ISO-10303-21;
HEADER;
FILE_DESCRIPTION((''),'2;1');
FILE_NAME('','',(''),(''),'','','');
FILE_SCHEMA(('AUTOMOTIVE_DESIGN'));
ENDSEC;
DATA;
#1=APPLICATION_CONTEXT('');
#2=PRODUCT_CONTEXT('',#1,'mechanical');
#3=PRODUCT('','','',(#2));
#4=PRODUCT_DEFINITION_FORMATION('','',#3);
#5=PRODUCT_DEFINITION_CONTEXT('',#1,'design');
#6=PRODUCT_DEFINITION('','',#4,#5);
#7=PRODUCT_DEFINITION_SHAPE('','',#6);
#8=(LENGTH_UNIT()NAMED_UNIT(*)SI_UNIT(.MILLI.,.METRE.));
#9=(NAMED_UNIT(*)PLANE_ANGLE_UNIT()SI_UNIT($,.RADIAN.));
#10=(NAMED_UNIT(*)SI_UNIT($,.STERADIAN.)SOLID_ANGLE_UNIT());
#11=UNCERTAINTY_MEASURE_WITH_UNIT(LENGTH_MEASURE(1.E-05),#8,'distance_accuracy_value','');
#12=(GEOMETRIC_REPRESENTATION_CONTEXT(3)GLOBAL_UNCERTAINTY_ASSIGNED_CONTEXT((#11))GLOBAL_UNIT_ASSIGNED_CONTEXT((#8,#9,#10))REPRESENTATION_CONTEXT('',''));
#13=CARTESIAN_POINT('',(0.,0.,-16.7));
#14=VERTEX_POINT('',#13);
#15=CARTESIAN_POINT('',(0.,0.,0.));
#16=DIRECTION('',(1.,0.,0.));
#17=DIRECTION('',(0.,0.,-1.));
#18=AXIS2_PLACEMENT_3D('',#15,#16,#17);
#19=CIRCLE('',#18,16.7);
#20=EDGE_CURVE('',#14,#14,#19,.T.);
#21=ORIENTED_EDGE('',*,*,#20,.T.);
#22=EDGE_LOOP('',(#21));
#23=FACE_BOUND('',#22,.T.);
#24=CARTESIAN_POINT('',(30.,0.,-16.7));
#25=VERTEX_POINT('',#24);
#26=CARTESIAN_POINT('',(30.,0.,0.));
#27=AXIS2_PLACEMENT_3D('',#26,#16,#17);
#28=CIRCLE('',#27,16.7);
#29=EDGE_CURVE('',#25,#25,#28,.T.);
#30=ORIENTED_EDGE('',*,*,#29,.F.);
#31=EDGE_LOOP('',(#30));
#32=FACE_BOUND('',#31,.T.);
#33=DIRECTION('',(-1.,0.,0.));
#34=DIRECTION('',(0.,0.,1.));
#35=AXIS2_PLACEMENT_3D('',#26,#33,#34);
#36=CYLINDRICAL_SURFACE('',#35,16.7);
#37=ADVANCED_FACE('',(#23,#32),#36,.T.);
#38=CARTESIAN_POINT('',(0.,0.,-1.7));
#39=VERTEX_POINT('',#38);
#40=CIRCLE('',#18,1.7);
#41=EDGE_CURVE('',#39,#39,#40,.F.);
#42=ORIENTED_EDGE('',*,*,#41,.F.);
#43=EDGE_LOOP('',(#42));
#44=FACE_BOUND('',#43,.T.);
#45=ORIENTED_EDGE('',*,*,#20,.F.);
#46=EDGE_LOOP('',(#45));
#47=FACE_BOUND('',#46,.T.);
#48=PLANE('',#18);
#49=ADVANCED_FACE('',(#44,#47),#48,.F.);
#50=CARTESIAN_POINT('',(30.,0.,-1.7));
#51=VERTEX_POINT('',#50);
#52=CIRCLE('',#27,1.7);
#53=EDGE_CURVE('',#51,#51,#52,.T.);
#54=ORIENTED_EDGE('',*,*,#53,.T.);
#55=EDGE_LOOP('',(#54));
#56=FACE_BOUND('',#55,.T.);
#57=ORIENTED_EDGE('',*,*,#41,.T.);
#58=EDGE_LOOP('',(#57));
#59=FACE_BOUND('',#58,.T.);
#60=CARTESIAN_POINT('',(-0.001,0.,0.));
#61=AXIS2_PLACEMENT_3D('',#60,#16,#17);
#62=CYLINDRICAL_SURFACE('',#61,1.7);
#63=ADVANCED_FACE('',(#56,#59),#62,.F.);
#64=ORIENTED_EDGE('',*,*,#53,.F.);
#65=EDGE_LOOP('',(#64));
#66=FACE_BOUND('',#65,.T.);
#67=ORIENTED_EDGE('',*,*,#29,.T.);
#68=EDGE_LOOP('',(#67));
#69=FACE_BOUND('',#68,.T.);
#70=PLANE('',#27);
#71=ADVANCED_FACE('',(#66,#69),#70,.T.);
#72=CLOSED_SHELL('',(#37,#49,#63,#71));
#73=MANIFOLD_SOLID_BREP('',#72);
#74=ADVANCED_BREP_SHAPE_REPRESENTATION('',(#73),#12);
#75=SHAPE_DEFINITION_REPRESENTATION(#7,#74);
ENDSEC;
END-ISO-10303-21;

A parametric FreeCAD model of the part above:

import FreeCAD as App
import Part
import Sketcher
from FreeCAD import Vector
Q = App.Units.Quantity

doc = App.newDocument("Part")
body = doc.addObject("PartDesign::Body", "Body")

# Sketch on YZ plane
sketch1 = body.newObject("Sketcher::SketchObject", "Sketch")
sketch1.AttachmentSupport = (doc.getObject("YZ_Plane"), [""])
sketch1.MapMode = "FlatFace"
sketch1.addGeometry(Part.Circle(Vector(0, 0, 0), Vector(0, 0, 1), 17), False)
sketch1.addConstraint([
    Sketcher.Constraint("Coincident", 0, 3, -1, 1),
    Sketcher.Constraint("Diameter", 0, Q("33.4 mm")),
])
pad1 = body.newObject("PartDesign::Pad", "Pad")
pad1.Profile = sketch1
pad1.Length = 30

# Sketch on YZ plane
sketch2 = body.newObject("Sketcher::SketchObject", "Sketch001")
sketch2.AttachmentSupport = (doc.getObject("YZ_Plane"), [""])
sketch2.MapMode = "FlatFace"
sketch2.AttachmentOffset = App.Placement(Vector(0, 0, 30), App.Rotation())
sketch2.addGeometry(Part.Circle(Vector(0, 0, 0), Vector(0, 0, 1), 1.7), False)
sketch2.addConstraint([
    Sketcher.Constraint("Coincident", 0, 3, -1, 1),
    Sketcher.Constraint("Diameter", 0, Q("3.4 mm")),
])
pocket1 = body.newObject("PartDesign::Pocket", "Pocket")
pocket1.Profile = sketch2
pocket1.Type = "UpToFirst"

doc.recompute()
